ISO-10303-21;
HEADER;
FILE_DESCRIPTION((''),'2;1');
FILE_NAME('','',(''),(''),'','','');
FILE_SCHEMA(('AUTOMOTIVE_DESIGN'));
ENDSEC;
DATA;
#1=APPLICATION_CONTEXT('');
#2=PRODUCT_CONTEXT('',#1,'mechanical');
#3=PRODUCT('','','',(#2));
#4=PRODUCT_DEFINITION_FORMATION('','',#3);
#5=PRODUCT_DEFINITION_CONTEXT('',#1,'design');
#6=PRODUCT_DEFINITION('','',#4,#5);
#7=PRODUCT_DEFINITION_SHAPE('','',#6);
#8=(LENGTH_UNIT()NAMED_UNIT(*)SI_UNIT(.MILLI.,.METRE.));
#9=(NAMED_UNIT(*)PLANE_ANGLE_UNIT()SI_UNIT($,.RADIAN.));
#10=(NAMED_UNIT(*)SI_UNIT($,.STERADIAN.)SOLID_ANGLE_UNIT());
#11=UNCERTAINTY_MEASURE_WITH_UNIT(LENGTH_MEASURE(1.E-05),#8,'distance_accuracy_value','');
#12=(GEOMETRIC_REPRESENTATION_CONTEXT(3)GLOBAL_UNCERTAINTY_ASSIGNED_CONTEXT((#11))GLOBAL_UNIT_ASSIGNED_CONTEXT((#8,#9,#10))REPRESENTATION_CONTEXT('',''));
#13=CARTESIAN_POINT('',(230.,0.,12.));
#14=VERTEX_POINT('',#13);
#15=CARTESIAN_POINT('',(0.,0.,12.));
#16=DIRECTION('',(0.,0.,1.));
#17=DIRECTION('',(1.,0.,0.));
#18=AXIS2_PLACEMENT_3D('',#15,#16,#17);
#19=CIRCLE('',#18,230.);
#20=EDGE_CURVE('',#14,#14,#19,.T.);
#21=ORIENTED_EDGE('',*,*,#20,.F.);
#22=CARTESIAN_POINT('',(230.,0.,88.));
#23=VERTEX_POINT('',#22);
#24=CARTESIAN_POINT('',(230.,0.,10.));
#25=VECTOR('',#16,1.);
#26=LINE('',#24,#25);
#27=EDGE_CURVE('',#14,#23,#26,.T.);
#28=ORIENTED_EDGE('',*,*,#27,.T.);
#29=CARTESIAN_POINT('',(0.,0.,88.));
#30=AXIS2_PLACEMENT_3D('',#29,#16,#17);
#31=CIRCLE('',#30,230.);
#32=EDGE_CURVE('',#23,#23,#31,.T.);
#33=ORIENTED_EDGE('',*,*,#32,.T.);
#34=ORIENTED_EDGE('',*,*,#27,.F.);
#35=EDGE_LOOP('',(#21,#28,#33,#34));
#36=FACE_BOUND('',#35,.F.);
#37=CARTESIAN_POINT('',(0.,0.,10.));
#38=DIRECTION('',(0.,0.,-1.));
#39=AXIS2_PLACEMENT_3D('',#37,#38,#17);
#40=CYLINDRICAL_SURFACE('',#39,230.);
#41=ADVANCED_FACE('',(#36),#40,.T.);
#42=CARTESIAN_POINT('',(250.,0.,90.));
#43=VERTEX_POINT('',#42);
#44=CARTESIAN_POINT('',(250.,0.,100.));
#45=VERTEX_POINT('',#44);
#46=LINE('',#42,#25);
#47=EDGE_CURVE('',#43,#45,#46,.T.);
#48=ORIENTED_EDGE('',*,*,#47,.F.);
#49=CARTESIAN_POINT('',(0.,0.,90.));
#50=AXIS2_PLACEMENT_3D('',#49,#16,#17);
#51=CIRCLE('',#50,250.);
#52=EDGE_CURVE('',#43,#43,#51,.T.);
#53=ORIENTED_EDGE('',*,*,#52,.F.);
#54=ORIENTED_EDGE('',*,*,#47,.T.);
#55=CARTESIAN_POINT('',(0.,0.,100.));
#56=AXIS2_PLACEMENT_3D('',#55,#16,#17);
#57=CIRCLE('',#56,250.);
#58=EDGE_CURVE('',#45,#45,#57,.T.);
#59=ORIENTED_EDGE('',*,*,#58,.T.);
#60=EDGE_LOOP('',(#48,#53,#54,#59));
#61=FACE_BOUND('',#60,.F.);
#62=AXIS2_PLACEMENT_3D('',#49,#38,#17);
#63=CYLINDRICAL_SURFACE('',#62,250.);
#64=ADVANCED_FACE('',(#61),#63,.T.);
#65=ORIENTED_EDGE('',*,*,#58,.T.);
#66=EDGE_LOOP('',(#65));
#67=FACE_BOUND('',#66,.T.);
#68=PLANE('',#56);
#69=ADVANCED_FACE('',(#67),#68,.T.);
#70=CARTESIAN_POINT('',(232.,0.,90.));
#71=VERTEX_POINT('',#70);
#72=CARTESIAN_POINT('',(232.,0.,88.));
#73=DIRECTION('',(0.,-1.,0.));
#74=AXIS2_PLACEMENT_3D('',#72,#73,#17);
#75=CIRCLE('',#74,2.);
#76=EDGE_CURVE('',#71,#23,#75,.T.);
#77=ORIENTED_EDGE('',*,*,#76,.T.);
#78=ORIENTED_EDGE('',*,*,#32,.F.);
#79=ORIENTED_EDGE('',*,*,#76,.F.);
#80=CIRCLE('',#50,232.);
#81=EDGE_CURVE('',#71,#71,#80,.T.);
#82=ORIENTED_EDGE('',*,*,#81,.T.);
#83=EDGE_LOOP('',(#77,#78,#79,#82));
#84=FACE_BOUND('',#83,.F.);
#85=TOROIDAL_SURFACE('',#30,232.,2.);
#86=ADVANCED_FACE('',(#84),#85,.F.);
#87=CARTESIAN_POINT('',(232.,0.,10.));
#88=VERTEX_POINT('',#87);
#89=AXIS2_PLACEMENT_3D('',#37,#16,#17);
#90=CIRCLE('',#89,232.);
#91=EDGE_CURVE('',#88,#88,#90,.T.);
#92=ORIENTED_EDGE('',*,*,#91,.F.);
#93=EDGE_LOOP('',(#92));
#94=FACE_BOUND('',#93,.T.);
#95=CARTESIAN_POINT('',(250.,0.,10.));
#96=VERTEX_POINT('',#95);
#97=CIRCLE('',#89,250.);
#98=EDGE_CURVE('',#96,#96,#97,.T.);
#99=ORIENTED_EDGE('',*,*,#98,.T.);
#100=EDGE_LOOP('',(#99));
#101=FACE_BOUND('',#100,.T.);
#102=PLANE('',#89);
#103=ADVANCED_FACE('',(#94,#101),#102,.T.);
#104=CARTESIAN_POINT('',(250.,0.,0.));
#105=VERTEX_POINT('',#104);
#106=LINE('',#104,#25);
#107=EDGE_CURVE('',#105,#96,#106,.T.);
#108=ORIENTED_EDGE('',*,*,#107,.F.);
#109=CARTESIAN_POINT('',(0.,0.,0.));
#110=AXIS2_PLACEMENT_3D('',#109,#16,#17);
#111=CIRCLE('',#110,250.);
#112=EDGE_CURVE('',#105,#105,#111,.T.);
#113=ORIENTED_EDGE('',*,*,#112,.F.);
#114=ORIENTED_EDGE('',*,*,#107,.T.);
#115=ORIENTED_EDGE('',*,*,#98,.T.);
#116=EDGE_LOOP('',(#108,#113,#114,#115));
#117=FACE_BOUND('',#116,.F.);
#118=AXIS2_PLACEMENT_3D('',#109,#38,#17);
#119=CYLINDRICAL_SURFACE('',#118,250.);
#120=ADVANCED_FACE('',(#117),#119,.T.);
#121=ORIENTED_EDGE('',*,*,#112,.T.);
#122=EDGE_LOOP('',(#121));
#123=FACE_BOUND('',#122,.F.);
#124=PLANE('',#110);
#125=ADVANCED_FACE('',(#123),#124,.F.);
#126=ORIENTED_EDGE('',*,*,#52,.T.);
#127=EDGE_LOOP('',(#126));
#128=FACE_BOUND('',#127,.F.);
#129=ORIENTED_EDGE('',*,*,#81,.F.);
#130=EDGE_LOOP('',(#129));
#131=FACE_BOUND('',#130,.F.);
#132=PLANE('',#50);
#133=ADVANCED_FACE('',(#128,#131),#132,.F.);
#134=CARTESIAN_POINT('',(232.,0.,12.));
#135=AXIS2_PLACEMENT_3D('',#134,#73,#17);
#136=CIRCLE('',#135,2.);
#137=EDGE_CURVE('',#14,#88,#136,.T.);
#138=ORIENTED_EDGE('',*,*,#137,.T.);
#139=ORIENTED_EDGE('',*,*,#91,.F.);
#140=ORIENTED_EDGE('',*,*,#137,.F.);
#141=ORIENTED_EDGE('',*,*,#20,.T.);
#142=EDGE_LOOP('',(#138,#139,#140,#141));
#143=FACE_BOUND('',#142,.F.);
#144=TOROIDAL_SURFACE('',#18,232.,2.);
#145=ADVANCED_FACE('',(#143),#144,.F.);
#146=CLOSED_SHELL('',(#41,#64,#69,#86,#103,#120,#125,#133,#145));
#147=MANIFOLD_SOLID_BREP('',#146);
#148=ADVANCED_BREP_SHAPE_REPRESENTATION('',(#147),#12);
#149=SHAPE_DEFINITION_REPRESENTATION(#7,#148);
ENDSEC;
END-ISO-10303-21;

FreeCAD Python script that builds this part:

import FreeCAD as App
import Part
import Sketcher
from FreeCAD import Vector
Q = App.Units.Quantity


def edges_at(feature, points):
    """Names of the edges that pass closest to the given points."""
    edges = feature.Shape.Edges
    near = lambda p: min(range(len(edges)), key=lambda i: edges[i].distToShape(Part.Vertex(*p))[0])
    return sorted({f"Edge{near(p) + 1}" for p in points})

doc = App.newDocument("Part")
body = doc.addObject("PartDesign::Body", "Body")

# Sketch on XY plane
sketch1 = body.newObject("Sketcher::SketchObject", "Sketch")
sketch1.AttachmentSupport = (doc.getObject("XY_Plane"), [""])
sketch1.MapMode = "FlatFace"
sketch1.addGeometry(Part.Circle(Vector(0, 0, 0), Vector(0, 0, 1), 250), False)
sketch1.addConstraint(Sketcher.Constraint("Coincident", 0, 3, -1, 1))
sketch1.addConstraint(Sketcher.Constraint("Diameter", 0, Q("500 mm")))
pad1 = body.newObject("PartDesign::Pad", "Pad")
pad1.Profile = sketch1
pad1.Length = 10

# Sketch on XY plane
sketch2 = body.newObject("Sketcher::SketchObject", "Sketch001")
sketch2.AttachmentSupport = (doc.getObject("XY_Plane"), [""])
sketch2.MapMode = "FlatFace"
sketch2.AttachmentOffset = App.Placement(Vector(0, 0, 10), App.Rotation())
sketch2.addGeometry(Part.Circle(Vector(0, 0, 0), Vector(0, 0, 1), 230), False)
sketch2.addConstraint(Sketcher.Constraint("Coincident", 0, 3, -1, 1))
sketch2.addConstraint(Sketcher.Constraint("Diameter", 0, Q("460 mm")))
pad2 = body.newObject("PartDesign::Pad", "Pad001")
pad2.Profile = sketch2
pad2.Length = 80

# Sketch on XY plane
sketch3 = body.newObject("Sketcher::SketchObject", "Sketch002")
sketch3.AttachmentSupport = (doc.getObject("XY_Plane"), [""])
sketch3.MapMode = "FlatFace"
sketch3.AttachmentOffset = App.Placement(Vector(0, 0, 90), App.Rotation())
sketch3.addGeometry(Part.Circle(Vector(0, 0, 0), Vector(0, 0, 1), 250), False)
sketch3.addConstraint(Sketcher.Constraint("Coincident", 0, 3, -1, 1))
sketch3.addConstraint(Sketcher.Constraint("Diameter", 0, Q("500 mm")))
pad3 = body.newObject("PartDesign::Pad", "Pad002")
pad3.Profile = sketch3
pad3.Length = 10
doc.recompute()

fillet = body.newObject("PartDesign::Fillet", "Fillet")
fillet.Base = (pad3, edges_at(pad3, [(230, 0, 50), (-230, 0, 10), (-230, 0, 90)]))
fillet.Radius = 2

doc.recompute()
